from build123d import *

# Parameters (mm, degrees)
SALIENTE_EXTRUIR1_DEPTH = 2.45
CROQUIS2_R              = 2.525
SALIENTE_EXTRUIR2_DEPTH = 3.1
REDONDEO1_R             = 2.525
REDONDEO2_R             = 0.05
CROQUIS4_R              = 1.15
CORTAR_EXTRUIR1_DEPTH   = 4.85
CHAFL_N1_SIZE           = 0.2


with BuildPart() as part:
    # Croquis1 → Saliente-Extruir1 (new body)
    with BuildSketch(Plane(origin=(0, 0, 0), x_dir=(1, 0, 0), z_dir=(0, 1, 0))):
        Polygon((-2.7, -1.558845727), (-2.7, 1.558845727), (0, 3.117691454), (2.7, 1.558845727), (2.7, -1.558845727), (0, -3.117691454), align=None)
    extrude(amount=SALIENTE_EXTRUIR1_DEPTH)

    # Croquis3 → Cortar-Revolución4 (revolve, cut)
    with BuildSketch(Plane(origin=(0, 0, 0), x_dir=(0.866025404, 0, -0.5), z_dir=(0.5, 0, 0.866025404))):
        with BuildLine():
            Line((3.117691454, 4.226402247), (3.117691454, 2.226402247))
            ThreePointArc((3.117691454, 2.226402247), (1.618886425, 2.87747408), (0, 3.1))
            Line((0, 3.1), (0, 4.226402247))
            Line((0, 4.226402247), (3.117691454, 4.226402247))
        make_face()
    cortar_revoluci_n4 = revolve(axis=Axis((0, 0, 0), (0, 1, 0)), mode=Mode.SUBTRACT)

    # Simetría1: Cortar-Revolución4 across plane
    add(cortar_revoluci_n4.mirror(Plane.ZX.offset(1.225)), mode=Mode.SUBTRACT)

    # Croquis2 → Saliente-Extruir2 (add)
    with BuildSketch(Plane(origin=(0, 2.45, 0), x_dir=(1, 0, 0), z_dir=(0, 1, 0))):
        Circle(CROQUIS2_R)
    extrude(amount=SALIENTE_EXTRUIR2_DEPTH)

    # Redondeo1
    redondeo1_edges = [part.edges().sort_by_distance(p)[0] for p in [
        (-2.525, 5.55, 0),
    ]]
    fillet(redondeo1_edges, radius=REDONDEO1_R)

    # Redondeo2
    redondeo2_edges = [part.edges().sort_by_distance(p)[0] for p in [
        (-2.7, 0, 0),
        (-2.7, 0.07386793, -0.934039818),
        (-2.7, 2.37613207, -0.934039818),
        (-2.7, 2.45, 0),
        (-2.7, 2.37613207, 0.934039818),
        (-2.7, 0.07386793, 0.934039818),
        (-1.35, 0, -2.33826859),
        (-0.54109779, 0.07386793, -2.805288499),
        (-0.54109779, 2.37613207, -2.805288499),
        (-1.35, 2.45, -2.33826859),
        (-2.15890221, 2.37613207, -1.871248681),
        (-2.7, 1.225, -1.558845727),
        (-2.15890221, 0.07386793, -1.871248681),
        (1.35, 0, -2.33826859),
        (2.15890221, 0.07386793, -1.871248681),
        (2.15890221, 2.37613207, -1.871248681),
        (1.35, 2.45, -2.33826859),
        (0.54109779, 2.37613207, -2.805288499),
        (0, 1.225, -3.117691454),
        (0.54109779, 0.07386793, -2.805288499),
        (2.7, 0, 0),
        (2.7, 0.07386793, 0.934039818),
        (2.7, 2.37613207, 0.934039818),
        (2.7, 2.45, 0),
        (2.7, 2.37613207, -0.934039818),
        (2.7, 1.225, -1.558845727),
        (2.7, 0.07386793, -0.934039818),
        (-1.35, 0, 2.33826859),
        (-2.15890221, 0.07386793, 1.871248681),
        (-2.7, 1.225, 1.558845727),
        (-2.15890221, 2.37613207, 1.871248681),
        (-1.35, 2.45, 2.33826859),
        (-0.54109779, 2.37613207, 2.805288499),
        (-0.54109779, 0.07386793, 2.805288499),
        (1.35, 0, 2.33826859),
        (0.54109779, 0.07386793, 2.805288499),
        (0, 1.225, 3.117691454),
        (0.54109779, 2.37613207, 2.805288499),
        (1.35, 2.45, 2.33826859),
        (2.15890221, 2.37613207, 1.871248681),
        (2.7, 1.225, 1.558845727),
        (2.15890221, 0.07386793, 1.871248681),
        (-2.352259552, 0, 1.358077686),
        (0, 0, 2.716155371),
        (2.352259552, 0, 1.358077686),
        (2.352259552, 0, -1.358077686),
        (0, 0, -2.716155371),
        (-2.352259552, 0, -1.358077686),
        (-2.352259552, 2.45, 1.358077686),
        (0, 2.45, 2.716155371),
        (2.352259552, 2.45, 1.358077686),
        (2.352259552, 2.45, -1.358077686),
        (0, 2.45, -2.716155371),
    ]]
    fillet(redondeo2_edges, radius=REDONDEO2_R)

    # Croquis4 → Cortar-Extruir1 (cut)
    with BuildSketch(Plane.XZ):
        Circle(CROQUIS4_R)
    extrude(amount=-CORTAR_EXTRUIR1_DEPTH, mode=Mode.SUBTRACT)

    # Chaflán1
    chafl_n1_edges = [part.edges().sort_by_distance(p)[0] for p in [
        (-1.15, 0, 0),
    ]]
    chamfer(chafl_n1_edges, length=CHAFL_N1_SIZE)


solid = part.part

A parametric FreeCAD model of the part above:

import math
import FreeCAD as App
import Part
import Sketcher
from FreeCAD import Vector
Q = App.Units.Quantity


def edges_at(feature, points):
    """Names of the edges that pass closest to the given points."""
    edges = feature.Shape.Edges
    near = lambda p: min(range(len(edges)), key=lambda i: edges[i].distToShape(Part.Vertex(*p))[0])
    return sorted({f"Edge{near(p) + 1}" for p in points})

doc = App.newDocument("Part")
body = doc.addObject("PartDesign::Body", "Body")

# Sketch on XZ plane
sketch1 = body.newObject("Sketcher::SketchObject", "Sketch")
sketch1.AttachmentSupport = (doc.getObject("XZ_Plane"), [""])
sketch1.MapMode = "FlatFace"
sketch1.addGeometry(Part.LineSegment(Vector(-2.7, -1.6, 0), Vector(-2.7, 1.6, 0)), False)
sketch1.addGeometry(Part.LineSegment(Vector(-2.7, 1.6, 0), Vector(0, 3.1, 0)), False)
sketch1.addGeometry(Part.LineSegment(Vector(0, 3.1, 0), Vector(2.7, 1.6, 0)), False)
sketch1.addGeometry(Part.LineSegment(Vector(2.7, 1.6, 0), Vector(2.7, -1.6, 0)), False)
sketch1.addGeometry(Part.LineSegment(Vector(2.7, -1.6, 0), Vector(0, -3.1, 0)), False)
sketch1.addGeometry(Part.LineSegment(Vector(0, -3.1, 0), Vector(-2.7, -1.6, 0)), False)
sketch1.addConstraint(Sketcher.Constraint("Coincident", 0, 2, 1, 1))
sketch1.addConstraint(Sketcher.Constraint("Coincident", 1, 2, 2, 1))
sketch1.addConstraint(Sketcher.Constraint("Coincident", 2, 2, 3, 1))
sketch1.addConstraint(Sketcher.Constraint("Coincident", 3, 2, 4, 1))
sketch1.addConstraint(Sketcher.Constraint("Coincident", 4, 2, 5, 1))
sketch1.addConstraint(Sketcher.Constraint("Coincident", 5, 2, 0, 1))
sketch1.addConstraint(Sketcher.Constraint("Vertical", 0))
sketch1.addConstraint(Sketcher.Constraint("Vertical", 3))
sketch1.addConstraint(Sketcher.Constraint("Symmetric", 0, 2, 3, 2, -1, 1))
sketch1.addConstraint(Sketcher.Constraint("Symmetric", 1, 2, 4, 2, -1, 1))
sketch1.addConstraint(Sketcher.Constraint("PointOnObject", 1, 2, -2))
sketch1.addConstraint(Sketcher.Constraint("Parallel", 2, 5))
sketch1.addConstraint(Sketcher.Constraint("Horizontal", 0, 2, 2, 2))
sketch1.addConstraint(Sketcher.Constraint("Angle", 1, Q("30 deg")))
sketch1.addConstraint(Sketcher.Constraint("DistanceX", 0, 2, -1, 1, Q("2.7 mm")))
sketch1.addConstraint(Sketcher.Constraint("DistanceY", 0, 1, 0, 2, Q("3.117691 mm")))
pad1 = body.newObject("PartDesign::Pad", "Pad")
pad1.Profile = sketch1
pad1.Length = 2.45
pad1.Reversed = True

# Sketch on an angled plane
sketch2 = body.newObject("Sketcher::SketchObject", "Sketch001")
sketch2.Placement = App.Placement(Vector(0, 0, 0), App.Rotation(Vector(0.866025404, 0, -0.5), Vector(0, 1, 0), Vector(0.5, 0, 0.866025404), "ZXY"))
sketch2.addGeometry(Part.LineSegment(Vector(3.1, 2.2, 0), Vector(3.1, 4.2, 0)), False)
sketch2.addGeometry(Part.LineSegment(Vector(3.1, 4.2, 0), Vector(0, 4.2, 0)), False)
sketch2.addGeometry(Part.LineSegment(Vector(0, 4.2, 0), Vector(0, 3.1, 0)), False)
sketch2.addGeometry(Part.ArcOfCircle(Part.Circle(Vector(0, -2.9, 0), Vector(0, 0, 1), 6), math.radians(59), math.radians(90)), False)
sketch2.addConstraint(Sketcher.Constraint("Coincident", 0, 2, 1, 1))
sketch2.addConstraint(Sketcher.Constraint("Coincident", 1, 2, 2, 1))
sketch2.addConstraint(Sketcher.Constraint("Coincident", 2, 2, 3, 2))
sketch2.addConstraint(Sketcher.Constraint("Coincident", 3, 1, 0, 1))
sketch2.addConstraint(Sketcher.Constraint("Vertical", 0))
sketch2.addConstraint(Sketcher.Constraint("Horizontal", 1))
sketch2.addConstraint(Sketcher.Constraint("Vertical", 2))
sketch2.addConstraint(Sketcher.Constraint("PointOnObject", 3, 3, -2))
sketch2.addConstraint(Sketcher.Constraint("PointOnObject", 1, 2, -2))
sketch2.addConstraint(Sketcher.Constraint("Radius", 3, Q("6 mm")))
sketch2.addConstraint(Sketcher.Constraint("DistanceY", 0, 1, 0, 2, Q("2 mm")))
sketch2.addConstraint(Sketcher.Constraint("DistanceY", 3, 3, -1, 1, Q("2.9 mm")))
sketch2.addConstraint(Sketcher.Constraint("DistanceX", 1, 2, 1, 1, Q("3.117691 mm")))
groove = body.newObject("PartDesign::Groove", "Groove")
groove.Profile = sketch2
groove.ReferenceAxis = (sketch2, ["V_Axis"])
groove.Angle = 360
doc.recompute()

datumplane = body.newObject("PartDesign::Plane", "DatumPlane")
datumplane.AttachmentSupport = (doc.getObject("XZ_Plane"), [""])
datumplane.MapMode = "FlatFace"
datumplane.AttachmentOffset = App.Placement(Vector(0, 0, -1.225), App.Rotation())
mirrored = body.newObject("PartDesign::Mirrored", "Mirrored")
mirrored.Originals = [groove]
mirrored.MirrorPlane = (datumplane, [""])
body.Tip = mirrored

# Sketch on XZ plane
sketch3 = body.newObject("Sketcher::SketchObject", "Sketch002")
sketch3.AttachmentSupport = (doc.getObject("XZ_Plane"), [""])
sketch3.MapMode = "FlatFace"
sketch3.AttachmentOffset = App.Placement(Vector(0, 0, -2.45), App.Rotation())
sketch3.addGeometry(Part.Circle(Vector(0, 0, 0), Vector(0, 0, 1), 2.5), False)
sketch3.addConstraint(Sketcher.Constraint("Coincident", 0, 3, -1, 1))
sketch3.addConstraint(Sketcher.Constraint("Diameter", 0, Q("5.05 mm")))
pad2 = body.newObject("PartDesign::Pad", "Pad001")
pad2.Profile = sketch3
pad2.Length = 3.1
pad2.Reversed = True
doc.recompute()

fillet = body.newObject("PartDesign::Fillet", "Fillet")
fillet.Base = (pad2, edges_at(pad2, [(-2.525, 5.55, 0)]))
fillet.Radius = 2.525
doc.recompute()

fillet2 = body.newObject("PartDesign::Fillet", "Fillet001")
fillet2.Base = (fillet, edges_at(fillet, [
    (-2.7, 0, 0),
    (-2.7, 0.074, -0.934),
    (-2.7, 2.376, -0.934),
    (-2.7, 2.45, 0),
    (-2.7, 2.376, 0.934),
    (-2.7, 0.074, 0.934),
    (-1.35, 0, -2.338),
    (-0.541, 0.074, -2.805),
    (-0.541, 2.376, -2.805),
    (-1.35, 2.45, -2.338),
    (-2.159, 2.376, -1.871),
    (-2.7, 1.225, -1.559),
    (-2.159, 0.074, -1.871),
    (1.35, 0, -2.338),
    (2.159, 0.074, -1.871),
    (2.159, 2.376, -1.871),
    (1.35, 2.45, -2.338),
    (0.541, 2.376, -2.805),
    (0, 1.225, -3.118),
    (0.541, 0.074, -2.805),
    (2.7, 0, 0),
    (2.7, 0.074, 0.934),
    (2.7, 2.376, 0.934),
    (2.7, 2.45, 0),
    (2.7, 2.376, -0.934),
    (2.7, 1.225, -1.559),
    (2.7, 0.074, -0.934),
    (-1.35, 0, 2.338),
    (-2.159, 0.074, 1.871),
    (-2.7, 1.225, 1.559),
    (-2.159, 2.376, 1.871),
    (-1.35, 2.45, 2.338),
    (-0.541, 2.376, 2.805),
    (-0.541, 0.074, 2.805),
    (1.35, 0, 2.338),
    (0.541, 0.074, 2.805),
    (0, 1.225, 3.118),
    (0.541, 2.376, 2.805),
    (1.35, 2.45, 2.338),
    (2.159, 2.376, 1.871),
    (2.7, 1.225, 1.559),
    (2.159, 0.074, 1.871),
    (-2.352, 0, 1.358),
    (0, 0, 2.716),
    (2.352, 0, 1.358),
    (2.352, 0, -1.358),
    (0, 0, -2.716),
    (-2.352, 0, -1.358),
    (-2.352, 2.45, 1.358),
    (0, 2.45, 2.716),
    (2.352, 2.45, 1.358),
    (2.352, 2.45, -1.358),
    (0, 2.45, -2.716),
]))
fillet2.Radius = 0.05

# Sketch on XZ plane
sketch4 = body.newObject("Sketcher::SketchObject", "Sketch003")
sketch4.AttachmentSupport = (doc.getObject("XZ_Plane"), [""])
sketch4.MapMode = "FlatFace"
sketch4.addGeometry(Part.Circle(Vector(0, 0, 0), Vector(0, 0, 1), 1.1), False)
sketch4.addConstraint(Sketcher.Constraint("Coincident", 0, 3, -1, 1))
sketch4.addConstraint(Sketcher.Constraint("Diameter", 0, Q("2.3 mm")))
pocket1 = body.newObject("PartDesign::Pocket", "Pocket")
pocket1.Profile = sketch4
pocket1.Length = 4.85
doc.recompute()

chamfer = body.newObject("PartDesign::Chamfer", "Chamfer")
chamfer.Base = (pocket1, edges_at(pocket1, [(-1.15, 0, 0)]))
chamfer.Size = 0.2

doc.recompute()
